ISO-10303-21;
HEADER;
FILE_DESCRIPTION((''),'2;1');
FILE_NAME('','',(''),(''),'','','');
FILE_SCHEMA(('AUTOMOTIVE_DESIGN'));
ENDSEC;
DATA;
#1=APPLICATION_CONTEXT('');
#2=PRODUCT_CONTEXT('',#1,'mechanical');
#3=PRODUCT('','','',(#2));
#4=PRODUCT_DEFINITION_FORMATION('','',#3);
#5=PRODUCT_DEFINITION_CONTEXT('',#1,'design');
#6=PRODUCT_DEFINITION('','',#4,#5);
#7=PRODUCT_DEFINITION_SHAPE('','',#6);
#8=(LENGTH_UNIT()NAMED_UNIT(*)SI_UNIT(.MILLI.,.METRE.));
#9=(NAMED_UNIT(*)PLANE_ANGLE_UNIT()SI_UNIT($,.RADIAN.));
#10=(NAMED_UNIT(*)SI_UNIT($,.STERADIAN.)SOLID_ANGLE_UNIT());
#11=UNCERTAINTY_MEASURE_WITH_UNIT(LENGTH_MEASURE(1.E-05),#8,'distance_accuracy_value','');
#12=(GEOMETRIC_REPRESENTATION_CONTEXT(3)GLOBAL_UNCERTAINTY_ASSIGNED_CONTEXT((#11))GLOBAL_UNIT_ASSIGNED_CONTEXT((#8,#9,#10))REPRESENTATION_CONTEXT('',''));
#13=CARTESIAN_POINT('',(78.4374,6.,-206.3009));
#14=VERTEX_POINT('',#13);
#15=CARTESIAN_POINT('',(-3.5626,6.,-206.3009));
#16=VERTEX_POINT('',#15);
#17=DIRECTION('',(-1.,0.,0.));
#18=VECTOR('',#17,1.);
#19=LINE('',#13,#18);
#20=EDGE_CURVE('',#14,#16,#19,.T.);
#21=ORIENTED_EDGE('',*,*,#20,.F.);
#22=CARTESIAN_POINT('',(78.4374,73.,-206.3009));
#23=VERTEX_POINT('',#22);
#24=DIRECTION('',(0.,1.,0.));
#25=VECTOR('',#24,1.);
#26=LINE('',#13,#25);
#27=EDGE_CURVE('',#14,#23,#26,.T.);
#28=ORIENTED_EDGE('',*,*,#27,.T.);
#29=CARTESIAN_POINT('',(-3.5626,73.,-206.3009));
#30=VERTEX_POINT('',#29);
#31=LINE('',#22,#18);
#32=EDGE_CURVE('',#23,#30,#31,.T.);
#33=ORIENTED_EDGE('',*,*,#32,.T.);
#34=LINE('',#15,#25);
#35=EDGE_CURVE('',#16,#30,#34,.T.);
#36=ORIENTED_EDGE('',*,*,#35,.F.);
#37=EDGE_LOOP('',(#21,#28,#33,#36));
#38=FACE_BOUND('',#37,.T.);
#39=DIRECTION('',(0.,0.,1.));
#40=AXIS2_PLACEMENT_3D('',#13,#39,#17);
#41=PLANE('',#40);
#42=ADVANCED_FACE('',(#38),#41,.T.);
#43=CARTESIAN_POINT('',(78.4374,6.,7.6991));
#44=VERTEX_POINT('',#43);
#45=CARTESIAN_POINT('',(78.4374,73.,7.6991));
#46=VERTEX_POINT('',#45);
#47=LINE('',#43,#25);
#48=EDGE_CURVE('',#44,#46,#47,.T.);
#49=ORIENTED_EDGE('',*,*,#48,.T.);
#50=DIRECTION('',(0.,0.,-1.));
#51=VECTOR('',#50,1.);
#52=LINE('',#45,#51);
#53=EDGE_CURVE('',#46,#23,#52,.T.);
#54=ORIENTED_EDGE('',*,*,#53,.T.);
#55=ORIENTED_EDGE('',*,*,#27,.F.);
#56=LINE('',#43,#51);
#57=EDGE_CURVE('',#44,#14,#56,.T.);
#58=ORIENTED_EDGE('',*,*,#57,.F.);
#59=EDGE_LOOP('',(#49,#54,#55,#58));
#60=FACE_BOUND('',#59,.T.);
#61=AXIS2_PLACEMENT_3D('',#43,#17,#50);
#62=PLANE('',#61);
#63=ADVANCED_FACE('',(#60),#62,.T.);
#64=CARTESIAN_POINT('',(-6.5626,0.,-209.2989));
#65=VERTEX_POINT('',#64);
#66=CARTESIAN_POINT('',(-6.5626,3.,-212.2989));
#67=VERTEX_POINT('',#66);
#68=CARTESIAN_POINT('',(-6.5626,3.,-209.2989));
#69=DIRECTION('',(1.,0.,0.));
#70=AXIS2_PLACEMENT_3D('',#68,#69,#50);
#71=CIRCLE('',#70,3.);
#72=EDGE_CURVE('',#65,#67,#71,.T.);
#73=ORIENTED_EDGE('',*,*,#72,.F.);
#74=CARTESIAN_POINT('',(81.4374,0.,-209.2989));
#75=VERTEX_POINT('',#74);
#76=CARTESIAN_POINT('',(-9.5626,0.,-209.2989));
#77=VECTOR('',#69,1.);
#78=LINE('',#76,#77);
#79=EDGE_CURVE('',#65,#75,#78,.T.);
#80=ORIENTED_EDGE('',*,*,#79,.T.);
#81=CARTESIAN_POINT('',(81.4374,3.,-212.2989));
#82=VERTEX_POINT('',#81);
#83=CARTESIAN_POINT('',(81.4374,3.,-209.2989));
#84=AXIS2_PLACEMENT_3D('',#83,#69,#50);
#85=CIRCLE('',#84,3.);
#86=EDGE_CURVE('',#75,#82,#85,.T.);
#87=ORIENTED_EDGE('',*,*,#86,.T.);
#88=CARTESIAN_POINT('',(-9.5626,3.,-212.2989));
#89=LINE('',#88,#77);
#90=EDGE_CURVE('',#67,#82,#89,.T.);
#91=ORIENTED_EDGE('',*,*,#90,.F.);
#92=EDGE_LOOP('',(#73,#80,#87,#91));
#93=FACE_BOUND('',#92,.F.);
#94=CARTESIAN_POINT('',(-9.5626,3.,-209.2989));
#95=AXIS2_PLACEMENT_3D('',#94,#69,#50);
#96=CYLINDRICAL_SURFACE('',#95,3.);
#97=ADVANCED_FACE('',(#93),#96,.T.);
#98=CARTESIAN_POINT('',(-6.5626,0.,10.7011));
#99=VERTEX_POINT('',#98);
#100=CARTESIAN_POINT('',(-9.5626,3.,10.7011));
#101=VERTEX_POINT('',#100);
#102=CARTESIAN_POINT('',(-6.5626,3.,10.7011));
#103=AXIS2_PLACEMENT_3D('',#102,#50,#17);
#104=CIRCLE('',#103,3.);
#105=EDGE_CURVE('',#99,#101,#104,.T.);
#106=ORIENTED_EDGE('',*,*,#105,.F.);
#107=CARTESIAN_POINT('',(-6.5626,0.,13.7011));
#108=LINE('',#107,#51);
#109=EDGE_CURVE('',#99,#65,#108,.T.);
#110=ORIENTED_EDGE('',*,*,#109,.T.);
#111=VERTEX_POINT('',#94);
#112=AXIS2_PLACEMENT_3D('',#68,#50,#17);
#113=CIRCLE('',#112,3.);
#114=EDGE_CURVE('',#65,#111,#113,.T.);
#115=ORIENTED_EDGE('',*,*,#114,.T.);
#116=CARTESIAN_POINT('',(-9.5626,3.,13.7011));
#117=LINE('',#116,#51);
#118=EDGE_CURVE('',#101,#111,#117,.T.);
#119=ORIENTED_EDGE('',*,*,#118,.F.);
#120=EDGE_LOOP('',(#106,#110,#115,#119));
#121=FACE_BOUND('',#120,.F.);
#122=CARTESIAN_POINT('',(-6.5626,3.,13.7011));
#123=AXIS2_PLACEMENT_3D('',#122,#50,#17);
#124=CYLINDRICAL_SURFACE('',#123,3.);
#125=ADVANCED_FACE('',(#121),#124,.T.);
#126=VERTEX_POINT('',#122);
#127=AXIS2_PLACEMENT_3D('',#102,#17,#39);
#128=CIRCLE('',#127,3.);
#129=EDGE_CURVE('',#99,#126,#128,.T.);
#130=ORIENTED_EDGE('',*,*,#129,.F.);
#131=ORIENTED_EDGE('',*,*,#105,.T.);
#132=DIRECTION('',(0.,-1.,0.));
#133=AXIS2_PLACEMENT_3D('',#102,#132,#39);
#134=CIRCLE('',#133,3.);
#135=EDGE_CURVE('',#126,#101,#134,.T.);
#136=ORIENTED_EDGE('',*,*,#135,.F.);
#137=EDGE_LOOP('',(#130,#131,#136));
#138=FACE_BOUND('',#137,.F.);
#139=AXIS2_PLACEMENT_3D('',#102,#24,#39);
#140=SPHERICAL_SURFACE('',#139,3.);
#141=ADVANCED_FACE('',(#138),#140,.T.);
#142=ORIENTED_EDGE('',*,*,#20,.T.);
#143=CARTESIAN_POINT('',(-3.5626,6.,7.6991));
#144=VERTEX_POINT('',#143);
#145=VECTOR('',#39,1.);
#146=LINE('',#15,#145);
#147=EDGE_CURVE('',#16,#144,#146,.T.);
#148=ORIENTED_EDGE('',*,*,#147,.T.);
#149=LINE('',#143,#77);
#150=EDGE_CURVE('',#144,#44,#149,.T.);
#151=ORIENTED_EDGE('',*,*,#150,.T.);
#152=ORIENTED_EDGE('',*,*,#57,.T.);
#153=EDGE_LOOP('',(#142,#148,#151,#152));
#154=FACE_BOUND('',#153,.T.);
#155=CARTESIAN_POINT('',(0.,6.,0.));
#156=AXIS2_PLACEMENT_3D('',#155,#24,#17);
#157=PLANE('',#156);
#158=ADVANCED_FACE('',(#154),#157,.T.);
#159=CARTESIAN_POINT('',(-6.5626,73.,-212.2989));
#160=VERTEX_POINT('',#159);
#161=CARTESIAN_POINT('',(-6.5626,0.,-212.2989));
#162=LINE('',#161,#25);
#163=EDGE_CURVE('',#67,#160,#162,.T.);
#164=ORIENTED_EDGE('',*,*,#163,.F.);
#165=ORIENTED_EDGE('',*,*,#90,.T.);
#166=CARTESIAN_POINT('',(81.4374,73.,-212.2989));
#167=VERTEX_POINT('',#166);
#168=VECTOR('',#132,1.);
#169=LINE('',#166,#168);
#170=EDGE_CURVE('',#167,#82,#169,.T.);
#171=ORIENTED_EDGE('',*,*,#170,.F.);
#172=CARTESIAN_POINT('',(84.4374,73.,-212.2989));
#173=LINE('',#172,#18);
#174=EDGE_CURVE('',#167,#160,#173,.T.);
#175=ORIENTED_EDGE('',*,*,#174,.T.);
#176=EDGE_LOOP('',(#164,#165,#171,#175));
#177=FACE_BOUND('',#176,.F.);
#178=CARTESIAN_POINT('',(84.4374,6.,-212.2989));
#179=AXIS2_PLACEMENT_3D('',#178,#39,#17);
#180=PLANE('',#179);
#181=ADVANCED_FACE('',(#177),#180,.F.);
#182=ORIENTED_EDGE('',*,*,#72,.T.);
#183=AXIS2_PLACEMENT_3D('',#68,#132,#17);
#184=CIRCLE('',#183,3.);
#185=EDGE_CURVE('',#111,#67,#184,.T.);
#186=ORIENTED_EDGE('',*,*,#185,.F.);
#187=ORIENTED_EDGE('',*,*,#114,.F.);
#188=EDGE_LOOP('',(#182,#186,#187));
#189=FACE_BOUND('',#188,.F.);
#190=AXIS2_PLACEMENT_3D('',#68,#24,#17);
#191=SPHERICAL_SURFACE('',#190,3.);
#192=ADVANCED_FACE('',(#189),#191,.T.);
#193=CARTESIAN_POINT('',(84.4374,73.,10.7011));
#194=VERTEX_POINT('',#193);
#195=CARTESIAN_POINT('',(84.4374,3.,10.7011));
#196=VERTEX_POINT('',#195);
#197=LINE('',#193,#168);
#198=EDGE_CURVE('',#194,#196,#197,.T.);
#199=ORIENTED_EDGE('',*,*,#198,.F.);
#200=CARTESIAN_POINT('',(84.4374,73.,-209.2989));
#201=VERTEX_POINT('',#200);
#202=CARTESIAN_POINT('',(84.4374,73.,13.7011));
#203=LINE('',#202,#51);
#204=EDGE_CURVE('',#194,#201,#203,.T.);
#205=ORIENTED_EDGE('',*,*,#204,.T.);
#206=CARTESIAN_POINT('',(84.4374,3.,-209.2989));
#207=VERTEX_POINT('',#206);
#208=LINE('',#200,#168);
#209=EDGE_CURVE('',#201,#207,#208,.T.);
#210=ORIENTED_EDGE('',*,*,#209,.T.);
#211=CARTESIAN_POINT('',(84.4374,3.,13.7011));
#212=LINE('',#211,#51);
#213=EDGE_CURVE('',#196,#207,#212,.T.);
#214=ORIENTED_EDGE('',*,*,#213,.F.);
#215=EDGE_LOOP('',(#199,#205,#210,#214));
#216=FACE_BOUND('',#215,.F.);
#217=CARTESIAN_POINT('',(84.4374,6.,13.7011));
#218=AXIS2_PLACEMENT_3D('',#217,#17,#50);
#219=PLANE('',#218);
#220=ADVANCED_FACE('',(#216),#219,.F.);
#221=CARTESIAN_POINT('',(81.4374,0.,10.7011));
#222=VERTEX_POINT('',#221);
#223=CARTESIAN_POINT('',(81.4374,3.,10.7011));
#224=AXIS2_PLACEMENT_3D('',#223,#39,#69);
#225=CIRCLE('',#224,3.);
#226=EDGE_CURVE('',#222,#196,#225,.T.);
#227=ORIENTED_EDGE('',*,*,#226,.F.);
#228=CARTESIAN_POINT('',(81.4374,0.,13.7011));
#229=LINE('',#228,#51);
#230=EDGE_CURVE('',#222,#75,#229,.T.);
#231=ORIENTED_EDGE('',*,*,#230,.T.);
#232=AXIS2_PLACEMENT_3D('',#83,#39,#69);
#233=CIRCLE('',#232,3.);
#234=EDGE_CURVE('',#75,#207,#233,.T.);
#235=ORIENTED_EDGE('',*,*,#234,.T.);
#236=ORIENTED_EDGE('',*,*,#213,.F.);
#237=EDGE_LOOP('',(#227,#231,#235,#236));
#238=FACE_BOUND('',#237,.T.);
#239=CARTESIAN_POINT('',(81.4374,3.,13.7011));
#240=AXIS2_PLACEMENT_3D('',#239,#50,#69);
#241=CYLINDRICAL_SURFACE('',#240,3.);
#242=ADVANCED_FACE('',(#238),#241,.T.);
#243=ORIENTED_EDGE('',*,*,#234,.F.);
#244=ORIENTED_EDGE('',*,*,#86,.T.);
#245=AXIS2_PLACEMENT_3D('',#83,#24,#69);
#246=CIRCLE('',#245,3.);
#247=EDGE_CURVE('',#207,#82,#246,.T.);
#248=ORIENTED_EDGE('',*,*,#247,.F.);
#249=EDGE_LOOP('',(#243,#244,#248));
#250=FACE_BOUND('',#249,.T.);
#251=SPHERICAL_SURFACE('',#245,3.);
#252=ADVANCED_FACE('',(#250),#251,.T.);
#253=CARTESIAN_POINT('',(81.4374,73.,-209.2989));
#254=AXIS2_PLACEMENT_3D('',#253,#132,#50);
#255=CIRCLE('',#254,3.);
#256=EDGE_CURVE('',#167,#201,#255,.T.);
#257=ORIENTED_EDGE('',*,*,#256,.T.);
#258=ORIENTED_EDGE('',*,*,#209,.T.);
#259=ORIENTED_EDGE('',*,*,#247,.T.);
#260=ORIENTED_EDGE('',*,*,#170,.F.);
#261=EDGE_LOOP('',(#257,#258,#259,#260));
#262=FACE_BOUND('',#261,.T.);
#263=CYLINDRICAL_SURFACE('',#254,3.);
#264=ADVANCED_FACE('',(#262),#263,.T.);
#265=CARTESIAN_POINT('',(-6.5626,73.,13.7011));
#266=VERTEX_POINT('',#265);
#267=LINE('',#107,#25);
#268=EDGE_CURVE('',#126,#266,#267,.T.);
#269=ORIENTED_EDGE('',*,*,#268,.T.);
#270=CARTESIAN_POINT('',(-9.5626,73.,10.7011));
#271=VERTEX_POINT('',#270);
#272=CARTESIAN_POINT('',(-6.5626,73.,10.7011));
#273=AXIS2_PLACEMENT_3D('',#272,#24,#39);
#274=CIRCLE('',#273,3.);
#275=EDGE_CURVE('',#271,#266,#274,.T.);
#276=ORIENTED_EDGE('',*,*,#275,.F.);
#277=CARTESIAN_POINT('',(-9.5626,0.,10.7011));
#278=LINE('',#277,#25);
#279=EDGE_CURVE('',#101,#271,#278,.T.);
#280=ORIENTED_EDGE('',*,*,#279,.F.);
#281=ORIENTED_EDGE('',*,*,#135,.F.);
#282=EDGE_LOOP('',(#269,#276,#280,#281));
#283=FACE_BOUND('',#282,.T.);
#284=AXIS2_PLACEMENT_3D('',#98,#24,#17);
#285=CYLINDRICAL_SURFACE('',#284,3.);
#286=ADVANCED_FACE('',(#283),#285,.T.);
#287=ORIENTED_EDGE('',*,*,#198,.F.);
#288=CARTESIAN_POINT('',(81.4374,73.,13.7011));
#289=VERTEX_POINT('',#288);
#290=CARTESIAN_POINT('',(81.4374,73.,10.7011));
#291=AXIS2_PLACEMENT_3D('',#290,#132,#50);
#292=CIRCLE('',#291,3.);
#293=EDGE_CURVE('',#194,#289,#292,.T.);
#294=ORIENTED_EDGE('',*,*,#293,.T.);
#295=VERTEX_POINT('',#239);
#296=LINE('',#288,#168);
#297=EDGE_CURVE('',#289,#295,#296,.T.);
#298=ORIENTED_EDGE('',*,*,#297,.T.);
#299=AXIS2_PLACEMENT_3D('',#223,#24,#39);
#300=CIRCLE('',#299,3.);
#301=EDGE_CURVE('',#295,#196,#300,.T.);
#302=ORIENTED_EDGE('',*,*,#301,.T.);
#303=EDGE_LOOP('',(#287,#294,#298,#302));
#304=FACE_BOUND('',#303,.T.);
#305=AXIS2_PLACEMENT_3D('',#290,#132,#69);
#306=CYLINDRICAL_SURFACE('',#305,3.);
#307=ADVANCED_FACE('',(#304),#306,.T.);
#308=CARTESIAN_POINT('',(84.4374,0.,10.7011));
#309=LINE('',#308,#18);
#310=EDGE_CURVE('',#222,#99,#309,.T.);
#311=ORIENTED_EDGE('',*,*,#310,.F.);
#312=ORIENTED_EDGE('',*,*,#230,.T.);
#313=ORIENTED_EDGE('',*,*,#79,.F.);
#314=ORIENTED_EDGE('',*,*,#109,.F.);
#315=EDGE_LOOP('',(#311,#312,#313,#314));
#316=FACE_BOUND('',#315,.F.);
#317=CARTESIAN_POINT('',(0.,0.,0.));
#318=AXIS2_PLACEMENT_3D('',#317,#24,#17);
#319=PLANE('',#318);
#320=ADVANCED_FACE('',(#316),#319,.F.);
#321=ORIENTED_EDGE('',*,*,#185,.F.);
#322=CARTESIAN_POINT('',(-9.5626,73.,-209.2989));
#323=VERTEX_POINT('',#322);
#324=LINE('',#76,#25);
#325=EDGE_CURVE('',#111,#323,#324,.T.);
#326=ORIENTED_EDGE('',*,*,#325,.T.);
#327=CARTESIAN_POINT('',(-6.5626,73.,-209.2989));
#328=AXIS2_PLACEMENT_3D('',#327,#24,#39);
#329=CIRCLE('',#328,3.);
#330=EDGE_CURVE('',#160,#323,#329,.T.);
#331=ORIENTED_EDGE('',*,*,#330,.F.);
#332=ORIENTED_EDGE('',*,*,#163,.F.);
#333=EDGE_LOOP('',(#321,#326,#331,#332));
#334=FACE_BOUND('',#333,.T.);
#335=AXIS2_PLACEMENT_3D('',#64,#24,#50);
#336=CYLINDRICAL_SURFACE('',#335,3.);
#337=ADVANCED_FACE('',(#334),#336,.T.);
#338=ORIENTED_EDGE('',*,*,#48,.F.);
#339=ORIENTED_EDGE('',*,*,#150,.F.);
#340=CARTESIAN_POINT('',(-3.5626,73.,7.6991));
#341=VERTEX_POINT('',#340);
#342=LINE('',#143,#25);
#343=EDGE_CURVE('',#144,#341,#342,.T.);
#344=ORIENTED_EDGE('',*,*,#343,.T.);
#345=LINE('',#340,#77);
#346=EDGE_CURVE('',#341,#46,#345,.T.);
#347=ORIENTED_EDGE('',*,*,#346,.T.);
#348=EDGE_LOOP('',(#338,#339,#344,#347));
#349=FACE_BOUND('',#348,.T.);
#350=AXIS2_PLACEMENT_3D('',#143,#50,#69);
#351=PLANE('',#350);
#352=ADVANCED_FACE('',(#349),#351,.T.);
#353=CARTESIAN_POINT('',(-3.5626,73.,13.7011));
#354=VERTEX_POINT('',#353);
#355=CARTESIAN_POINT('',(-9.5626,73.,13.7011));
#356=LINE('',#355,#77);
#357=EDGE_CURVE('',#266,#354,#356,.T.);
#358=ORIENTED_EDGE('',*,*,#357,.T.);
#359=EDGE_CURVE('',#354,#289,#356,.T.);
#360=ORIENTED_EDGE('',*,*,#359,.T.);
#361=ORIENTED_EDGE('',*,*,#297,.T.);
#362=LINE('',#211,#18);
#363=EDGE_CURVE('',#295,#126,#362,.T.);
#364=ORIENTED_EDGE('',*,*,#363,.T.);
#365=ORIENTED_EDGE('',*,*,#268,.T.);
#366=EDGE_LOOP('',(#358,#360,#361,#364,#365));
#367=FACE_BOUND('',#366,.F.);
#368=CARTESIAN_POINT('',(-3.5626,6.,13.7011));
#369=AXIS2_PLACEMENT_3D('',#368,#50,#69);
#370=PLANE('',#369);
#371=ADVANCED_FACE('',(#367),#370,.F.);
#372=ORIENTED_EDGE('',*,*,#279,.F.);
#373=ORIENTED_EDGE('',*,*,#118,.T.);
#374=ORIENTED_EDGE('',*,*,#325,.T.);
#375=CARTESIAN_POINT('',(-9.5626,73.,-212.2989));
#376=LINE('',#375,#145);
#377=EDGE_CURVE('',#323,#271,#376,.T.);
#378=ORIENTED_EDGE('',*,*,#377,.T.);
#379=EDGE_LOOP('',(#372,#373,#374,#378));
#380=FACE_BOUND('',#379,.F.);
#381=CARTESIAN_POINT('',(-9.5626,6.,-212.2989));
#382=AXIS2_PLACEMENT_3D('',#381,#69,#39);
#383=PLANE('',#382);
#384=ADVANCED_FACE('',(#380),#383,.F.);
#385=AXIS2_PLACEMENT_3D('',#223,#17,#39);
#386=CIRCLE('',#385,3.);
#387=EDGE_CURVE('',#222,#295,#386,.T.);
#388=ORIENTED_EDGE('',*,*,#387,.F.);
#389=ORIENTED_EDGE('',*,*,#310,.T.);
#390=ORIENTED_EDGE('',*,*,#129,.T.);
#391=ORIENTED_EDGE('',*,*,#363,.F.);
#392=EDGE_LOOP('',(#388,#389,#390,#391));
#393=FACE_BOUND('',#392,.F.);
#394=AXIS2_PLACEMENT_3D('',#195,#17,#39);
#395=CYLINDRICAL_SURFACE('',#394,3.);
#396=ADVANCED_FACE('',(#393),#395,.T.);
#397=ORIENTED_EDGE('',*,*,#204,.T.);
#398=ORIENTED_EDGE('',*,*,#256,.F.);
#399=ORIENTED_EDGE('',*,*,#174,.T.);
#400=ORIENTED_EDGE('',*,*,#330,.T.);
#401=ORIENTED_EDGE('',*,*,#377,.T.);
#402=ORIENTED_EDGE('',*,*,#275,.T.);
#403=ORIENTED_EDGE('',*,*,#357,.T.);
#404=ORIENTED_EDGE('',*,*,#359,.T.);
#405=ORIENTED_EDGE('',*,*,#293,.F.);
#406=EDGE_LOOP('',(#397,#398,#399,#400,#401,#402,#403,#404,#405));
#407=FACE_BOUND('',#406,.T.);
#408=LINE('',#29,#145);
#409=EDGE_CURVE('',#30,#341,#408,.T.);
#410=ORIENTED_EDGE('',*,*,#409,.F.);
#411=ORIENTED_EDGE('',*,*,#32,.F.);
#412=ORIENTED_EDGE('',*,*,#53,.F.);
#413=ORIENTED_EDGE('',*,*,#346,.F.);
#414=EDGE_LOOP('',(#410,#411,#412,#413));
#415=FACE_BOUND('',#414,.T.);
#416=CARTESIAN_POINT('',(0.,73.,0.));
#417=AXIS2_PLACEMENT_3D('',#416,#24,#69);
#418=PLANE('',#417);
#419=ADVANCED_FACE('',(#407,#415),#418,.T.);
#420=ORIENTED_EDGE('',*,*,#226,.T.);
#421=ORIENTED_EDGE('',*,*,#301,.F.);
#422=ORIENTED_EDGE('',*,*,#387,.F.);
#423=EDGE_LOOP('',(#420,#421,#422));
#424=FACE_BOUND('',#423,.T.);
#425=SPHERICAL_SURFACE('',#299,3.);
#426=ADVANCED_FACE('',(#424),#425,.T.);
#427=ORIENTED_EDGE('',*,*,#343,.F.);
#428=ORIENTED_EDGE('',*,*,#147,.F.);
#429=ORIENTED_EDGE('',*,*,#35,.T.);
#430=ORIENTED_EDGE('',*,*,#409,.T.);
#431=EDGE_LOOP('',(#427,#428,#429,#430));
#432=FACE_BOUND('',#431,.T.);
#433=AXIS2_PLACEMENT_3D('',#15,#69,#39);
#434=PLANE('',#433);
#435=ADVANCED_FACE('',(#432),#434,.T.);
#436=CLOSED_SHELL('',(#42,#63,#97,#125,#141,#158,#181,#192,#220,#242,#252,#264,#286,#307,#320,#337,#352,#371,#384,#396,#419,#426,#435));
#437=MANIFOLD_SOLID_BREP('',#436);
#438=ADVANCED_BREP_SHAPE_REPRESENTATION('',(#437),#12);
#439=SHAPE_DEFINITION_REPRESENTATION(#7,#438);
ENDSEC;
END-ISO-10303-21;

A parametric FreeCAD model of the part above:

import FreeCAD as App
import Part
import Sketcher

V = App.Vector
Q = App.Units.Quantity


def edges_at(feature, points):
    """Names of the edges that pass closest to the given points."""
    edges = feature.Shape.Edges
    near = lambda p: min(range(len(edges)), key=lambda i: edges[i].distToShape(Part.Vertex(*p))[0])
    return sorted({f"Edge{near(p) + 1}" for p in points})


def add_polygon(sketch, points):
    """Adds a closed chain of lines whose ends are joined by coincident constraints."""
    first, n = sketch.GeometryCount, len(points)
    for a, b in zip(points, points[1:] + points[:1]):
        sketch.addGeometry(Part.LineSegment(App.Vector(*a, 0), App.Vector(*b, 0)), False)
    for i in range(n):
        sketch.addConstraint(Sketcher.Constraint("Coincident", first + i, 2, first + (i + 1) % n, 1))

doc = App.newDocument("Part")
body = doc.addObject("PartDesign::Body", "Body")

# Sketch on XZ plane
sketch1 = doc.addObject("Sketcher::SketchObject", "Sketch")
body.addObject(sketch1)
sketch1.AttachmentSupport = (doc.XZ_Plane, [""])
sketch1.MapMode = "FlatFace"
add_polygon(sketch1, [(84, -212), (-10, -212), (-10, 14), (84, 14)])  # lines 0-3
sketch1.addConstraint(Sketcher.Constraint("Horizontal", 0))
sketch1.addConstraint(Sketcher.Constraint("Vertical", 1))
sketch1.addConstraint(Sketcher.Constraint("Horizontal", 2))
sketch1.addConstraint(Sketcher.Constraint("Vertical", 3))
sketch1.addConstraint(Sketcher.Constraint("DistanceX", 0, 2, 0, 1, Q("94 mm")))
sketch1.addConstraint(Sketcher.Constraint("DistanceY", 1, 1, 1, 2, Q("226 mm")))
sketch1.addConstraint(Sketcher.Constraint("DistanceY", 0, 2, -1, 1, Q("212.299 mm")))
sketch1.addConstraint(Sketcher.Constraint("DistanceX", 0, 2, -1, 1, Q("9.5626 mm")))
pad1 = doc.addObject("PartDesign::Pad", "Pad")
body.addObject(pad1)
pad1.Profile = sketch1
pad1.Length = 6
pad1.Reversed = True

# Sketch on XZ plane
sketch2 = doc.addObject("Sketcher::SketchObject", "Sketch001")
body.addObject(sketch2)
sketch2.AttachmentSupport = (doc.XZ_Plane, [""])
sketch2.MapMode = "FlatFace"
sketch2.AttachmentOffset = App.Placement(V(0, 0, -6), App.Rotation())
add_polygon(sketch2, [(84, -212), (-10, -212), (-10, 14), (-4, 14), (84, 14)])  # lines 0-4
add_polygon(sketch2, [(78, 8), (-4, 8), (-4, -206), (78, -206)])  # lines 5-8
sketch2.addConstraint(Sketcher.Constraint("Horizontal", 0))
sketch2.addConstraint(Sketcher.Constraint("Vertical", 1))
sketch2.addConstraint(Sketcher.Constraint("Horizontal", 2))
sketch2.addConstraint(Sketcher.Constraint("Horizontal", 3))
sketch2.addConstraint(Sketcher.Constraint("Vertical", 4))
sketch2.addConstraint(Sketcher.Constraint("Horizontal", 5))
sketch2.addConstraint(Sketcher.Constraint("Vertical", 6))
sketch2.addConstraint(Sketcher.Constraint("Horizontal", 7))
sketch2.addConstraint(Sketcher.Constraint("Vertical", 8))
sketch2.addConstraint(Sketcher.Constraint("Vertical", 2, 2, 5, 2))
sketch2.addConstraint(Sketcher.Constraint("DistanceX", 2, 1, 2, 2, Q("6 mm")))
sketch2.addConstraint(Sketcher.Constraint("DistanceX", 5, 2, 5, 1, Q("82 mm")))
sketch2.addConstraint(Sketcher.Constraint("DistanceY", 6, 2, 6, 1, Q("214 mm")))
sketch2.addConstraint(Sketcher.Constraint("DistanceX", 7, 2, 4, 2, Q("6 mm")))
sketch2.addConstraint(Sketcher.Constraint("DistanceY", 1, 1, 1, 2, Q("226 mm")))
sketch2.addConstraint(Sketcher.Constraint("DistanceY", 0, 2, -1, 1, Q("212.299 mm")))
sketch2.addConstraint(Sketcher.Constraint("DistanceY", -1, 1, 5, 2, Q("7.699 mm")))
sketch2.addConstraint(Sketcher.Constraint("DistanceX", 0, 2, -1, 1, Q("9.5626 mm")))
pad2 = doc.addObject("PartDesign::Pad", "Pad001")
body.addObject(pad2)
pad2.Profile = sketch2
pad2.Length = 67
pad2.Reversed = True
doc.recompute()

fillet = doc.addObject("PartDesign::Fillet", "Fillet")
body.addObject(fillet)
fillet.Base = (pad2, edges_at(pad2, [
    (84.437, 36.5, -212.299),
    (-9.563, 36.5, -212.299),
    (-9.563, 36.5, 13.701),
    (84.437, 36.5, 13.701),
    (37.437, 0, 13.701),
    (84.437, 0, -99.299),
    (-9.563, 0, -99.299),
    (37.437, 0, -212.299),
]))
fillet.Radius = 3

doc.recompute()
